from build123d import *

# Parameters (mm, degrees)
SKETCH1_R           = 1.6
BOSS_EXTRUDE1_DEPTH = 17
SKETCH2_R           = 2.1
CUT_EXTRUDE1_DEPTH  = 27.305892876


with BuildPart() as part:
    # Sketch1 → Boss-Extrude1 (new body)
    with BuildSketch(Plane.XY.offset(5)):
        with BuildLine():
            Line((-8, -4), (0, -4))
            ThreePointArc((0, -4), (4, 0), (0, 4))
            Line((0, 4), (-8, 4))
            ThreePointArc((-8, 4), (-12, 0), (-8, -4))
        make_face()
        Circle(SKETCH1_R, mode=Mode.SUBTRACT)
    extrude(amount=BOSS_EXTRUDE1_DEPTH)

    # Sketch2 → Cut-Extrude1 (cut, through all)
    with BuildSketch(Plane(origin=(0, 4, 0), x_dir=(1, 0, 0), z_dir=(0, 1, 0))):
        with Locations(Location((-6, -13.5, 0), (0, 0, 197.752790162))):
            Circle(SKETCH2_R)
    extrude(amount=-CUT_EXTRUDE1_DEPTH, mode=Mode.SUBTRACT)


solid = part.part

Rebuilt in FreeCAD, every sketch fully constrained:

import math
import FreeCAD as App
import Part
import Sketcher

V = App.Vector

doc = App.newDocument("Part")
body = doc.addObject("PartDesign::Body", "Body")

# Sketch on XY plane
sketch1 = body.newObject("Sketcher::SketchObject", "Sketch")
sketch1.AttachmentSupport = (doc.getObject("XY_Plane"), [""])
sketch1.MapMode = "FlatFace"
sketch1.AttachmentOffset = App.Placement(V(0, 0, 5), App.Rotation())
sketch1.addGeometry([
    Part.LineSegment(V(-8, -4, 0), V(0, -4, 0)),  # 0
    Part.ArcOfCircle(Part.Circle(V(0, 0, 0), V(0, 0, 1), 4), math.radians(-90), math.radians(90)),  # 1
    Part.LineSegment(V(0, 4, 0), V(-8, 4, 0)),  # 2
    Part.ArcOfCircle(Part.Circle(V(-8, 0, 0), V(0, 0, 1), 4), math.radians(90), math.radians(270)),  # 3
    Part.Circle(V(0, 0, 0), V(0, 0, 1), 1.6),  # 4
], False)
sketch1.addConstraint([
    Sketcher.Constraint("Tangent", 0, 2, 1, 1),
    Sketcher.Constraint("Tangent", 1, 2, 2, 1),
    Sketcher.Constraint("Tangent", 2, 2, 3, 1),
    Sketcher.Constraint("Tangent", 3, 2, 0, 1),
    Sketcher.Constraint("Horizontal", 0),
    Sketcher.Constraint("Horizontal", 2),
    Sketcher.Constraint("Coincident", 1, 3, -1, 1),
    Sketcher.Constraint("Coincident", 4, 3, -1, 1),
    Sketcher.Constraint("Radius", 1, 4.0),
    Sketcher.Constraint("Diameter", 4, 3.2),
    Sketcher.Constraint("DistanceX", 0, 1, 0, 2, 8.0),
])
pad1 = body.newObject("PartDesign::Pad", "Pad")
pad1.Profile = sketch1
pad1.Length = 17

# Sketch on XZ plane
sketch2 = body.newObject("Sketcher::SketchObject", "Sketch001")
sketch2.AttachmentSupport = (doc.getObject("XZ_Plane"), [""])
sketch2.MapMode = "FlatFace"
sketch2.AttachmentOffset = App.Placement(V(0, 0, -4), App.Rotation())
sketch2.addGeometry(Part.Circle(V(-6, 13.5, 0), V(0, 0, 1), 2.1), False)
sketch2.addConstraint([
    Sketcher.Constraint("Diameter", 0, 4.2),
    Sketcher.Constraint("DistanceX", 0, 3, -1, 1, 6.0),
    Sketcher.Constraint("DistanceY", -1, 1, 0, 3, 13.5),
])
pocket1 = body.newObject("PartDesign::Pocket", "Pocket")
pocket1.Profile = sketch2
pocket1.Type = "ThroughAll"
pocket1.Reversed = True

doc.recompute()
